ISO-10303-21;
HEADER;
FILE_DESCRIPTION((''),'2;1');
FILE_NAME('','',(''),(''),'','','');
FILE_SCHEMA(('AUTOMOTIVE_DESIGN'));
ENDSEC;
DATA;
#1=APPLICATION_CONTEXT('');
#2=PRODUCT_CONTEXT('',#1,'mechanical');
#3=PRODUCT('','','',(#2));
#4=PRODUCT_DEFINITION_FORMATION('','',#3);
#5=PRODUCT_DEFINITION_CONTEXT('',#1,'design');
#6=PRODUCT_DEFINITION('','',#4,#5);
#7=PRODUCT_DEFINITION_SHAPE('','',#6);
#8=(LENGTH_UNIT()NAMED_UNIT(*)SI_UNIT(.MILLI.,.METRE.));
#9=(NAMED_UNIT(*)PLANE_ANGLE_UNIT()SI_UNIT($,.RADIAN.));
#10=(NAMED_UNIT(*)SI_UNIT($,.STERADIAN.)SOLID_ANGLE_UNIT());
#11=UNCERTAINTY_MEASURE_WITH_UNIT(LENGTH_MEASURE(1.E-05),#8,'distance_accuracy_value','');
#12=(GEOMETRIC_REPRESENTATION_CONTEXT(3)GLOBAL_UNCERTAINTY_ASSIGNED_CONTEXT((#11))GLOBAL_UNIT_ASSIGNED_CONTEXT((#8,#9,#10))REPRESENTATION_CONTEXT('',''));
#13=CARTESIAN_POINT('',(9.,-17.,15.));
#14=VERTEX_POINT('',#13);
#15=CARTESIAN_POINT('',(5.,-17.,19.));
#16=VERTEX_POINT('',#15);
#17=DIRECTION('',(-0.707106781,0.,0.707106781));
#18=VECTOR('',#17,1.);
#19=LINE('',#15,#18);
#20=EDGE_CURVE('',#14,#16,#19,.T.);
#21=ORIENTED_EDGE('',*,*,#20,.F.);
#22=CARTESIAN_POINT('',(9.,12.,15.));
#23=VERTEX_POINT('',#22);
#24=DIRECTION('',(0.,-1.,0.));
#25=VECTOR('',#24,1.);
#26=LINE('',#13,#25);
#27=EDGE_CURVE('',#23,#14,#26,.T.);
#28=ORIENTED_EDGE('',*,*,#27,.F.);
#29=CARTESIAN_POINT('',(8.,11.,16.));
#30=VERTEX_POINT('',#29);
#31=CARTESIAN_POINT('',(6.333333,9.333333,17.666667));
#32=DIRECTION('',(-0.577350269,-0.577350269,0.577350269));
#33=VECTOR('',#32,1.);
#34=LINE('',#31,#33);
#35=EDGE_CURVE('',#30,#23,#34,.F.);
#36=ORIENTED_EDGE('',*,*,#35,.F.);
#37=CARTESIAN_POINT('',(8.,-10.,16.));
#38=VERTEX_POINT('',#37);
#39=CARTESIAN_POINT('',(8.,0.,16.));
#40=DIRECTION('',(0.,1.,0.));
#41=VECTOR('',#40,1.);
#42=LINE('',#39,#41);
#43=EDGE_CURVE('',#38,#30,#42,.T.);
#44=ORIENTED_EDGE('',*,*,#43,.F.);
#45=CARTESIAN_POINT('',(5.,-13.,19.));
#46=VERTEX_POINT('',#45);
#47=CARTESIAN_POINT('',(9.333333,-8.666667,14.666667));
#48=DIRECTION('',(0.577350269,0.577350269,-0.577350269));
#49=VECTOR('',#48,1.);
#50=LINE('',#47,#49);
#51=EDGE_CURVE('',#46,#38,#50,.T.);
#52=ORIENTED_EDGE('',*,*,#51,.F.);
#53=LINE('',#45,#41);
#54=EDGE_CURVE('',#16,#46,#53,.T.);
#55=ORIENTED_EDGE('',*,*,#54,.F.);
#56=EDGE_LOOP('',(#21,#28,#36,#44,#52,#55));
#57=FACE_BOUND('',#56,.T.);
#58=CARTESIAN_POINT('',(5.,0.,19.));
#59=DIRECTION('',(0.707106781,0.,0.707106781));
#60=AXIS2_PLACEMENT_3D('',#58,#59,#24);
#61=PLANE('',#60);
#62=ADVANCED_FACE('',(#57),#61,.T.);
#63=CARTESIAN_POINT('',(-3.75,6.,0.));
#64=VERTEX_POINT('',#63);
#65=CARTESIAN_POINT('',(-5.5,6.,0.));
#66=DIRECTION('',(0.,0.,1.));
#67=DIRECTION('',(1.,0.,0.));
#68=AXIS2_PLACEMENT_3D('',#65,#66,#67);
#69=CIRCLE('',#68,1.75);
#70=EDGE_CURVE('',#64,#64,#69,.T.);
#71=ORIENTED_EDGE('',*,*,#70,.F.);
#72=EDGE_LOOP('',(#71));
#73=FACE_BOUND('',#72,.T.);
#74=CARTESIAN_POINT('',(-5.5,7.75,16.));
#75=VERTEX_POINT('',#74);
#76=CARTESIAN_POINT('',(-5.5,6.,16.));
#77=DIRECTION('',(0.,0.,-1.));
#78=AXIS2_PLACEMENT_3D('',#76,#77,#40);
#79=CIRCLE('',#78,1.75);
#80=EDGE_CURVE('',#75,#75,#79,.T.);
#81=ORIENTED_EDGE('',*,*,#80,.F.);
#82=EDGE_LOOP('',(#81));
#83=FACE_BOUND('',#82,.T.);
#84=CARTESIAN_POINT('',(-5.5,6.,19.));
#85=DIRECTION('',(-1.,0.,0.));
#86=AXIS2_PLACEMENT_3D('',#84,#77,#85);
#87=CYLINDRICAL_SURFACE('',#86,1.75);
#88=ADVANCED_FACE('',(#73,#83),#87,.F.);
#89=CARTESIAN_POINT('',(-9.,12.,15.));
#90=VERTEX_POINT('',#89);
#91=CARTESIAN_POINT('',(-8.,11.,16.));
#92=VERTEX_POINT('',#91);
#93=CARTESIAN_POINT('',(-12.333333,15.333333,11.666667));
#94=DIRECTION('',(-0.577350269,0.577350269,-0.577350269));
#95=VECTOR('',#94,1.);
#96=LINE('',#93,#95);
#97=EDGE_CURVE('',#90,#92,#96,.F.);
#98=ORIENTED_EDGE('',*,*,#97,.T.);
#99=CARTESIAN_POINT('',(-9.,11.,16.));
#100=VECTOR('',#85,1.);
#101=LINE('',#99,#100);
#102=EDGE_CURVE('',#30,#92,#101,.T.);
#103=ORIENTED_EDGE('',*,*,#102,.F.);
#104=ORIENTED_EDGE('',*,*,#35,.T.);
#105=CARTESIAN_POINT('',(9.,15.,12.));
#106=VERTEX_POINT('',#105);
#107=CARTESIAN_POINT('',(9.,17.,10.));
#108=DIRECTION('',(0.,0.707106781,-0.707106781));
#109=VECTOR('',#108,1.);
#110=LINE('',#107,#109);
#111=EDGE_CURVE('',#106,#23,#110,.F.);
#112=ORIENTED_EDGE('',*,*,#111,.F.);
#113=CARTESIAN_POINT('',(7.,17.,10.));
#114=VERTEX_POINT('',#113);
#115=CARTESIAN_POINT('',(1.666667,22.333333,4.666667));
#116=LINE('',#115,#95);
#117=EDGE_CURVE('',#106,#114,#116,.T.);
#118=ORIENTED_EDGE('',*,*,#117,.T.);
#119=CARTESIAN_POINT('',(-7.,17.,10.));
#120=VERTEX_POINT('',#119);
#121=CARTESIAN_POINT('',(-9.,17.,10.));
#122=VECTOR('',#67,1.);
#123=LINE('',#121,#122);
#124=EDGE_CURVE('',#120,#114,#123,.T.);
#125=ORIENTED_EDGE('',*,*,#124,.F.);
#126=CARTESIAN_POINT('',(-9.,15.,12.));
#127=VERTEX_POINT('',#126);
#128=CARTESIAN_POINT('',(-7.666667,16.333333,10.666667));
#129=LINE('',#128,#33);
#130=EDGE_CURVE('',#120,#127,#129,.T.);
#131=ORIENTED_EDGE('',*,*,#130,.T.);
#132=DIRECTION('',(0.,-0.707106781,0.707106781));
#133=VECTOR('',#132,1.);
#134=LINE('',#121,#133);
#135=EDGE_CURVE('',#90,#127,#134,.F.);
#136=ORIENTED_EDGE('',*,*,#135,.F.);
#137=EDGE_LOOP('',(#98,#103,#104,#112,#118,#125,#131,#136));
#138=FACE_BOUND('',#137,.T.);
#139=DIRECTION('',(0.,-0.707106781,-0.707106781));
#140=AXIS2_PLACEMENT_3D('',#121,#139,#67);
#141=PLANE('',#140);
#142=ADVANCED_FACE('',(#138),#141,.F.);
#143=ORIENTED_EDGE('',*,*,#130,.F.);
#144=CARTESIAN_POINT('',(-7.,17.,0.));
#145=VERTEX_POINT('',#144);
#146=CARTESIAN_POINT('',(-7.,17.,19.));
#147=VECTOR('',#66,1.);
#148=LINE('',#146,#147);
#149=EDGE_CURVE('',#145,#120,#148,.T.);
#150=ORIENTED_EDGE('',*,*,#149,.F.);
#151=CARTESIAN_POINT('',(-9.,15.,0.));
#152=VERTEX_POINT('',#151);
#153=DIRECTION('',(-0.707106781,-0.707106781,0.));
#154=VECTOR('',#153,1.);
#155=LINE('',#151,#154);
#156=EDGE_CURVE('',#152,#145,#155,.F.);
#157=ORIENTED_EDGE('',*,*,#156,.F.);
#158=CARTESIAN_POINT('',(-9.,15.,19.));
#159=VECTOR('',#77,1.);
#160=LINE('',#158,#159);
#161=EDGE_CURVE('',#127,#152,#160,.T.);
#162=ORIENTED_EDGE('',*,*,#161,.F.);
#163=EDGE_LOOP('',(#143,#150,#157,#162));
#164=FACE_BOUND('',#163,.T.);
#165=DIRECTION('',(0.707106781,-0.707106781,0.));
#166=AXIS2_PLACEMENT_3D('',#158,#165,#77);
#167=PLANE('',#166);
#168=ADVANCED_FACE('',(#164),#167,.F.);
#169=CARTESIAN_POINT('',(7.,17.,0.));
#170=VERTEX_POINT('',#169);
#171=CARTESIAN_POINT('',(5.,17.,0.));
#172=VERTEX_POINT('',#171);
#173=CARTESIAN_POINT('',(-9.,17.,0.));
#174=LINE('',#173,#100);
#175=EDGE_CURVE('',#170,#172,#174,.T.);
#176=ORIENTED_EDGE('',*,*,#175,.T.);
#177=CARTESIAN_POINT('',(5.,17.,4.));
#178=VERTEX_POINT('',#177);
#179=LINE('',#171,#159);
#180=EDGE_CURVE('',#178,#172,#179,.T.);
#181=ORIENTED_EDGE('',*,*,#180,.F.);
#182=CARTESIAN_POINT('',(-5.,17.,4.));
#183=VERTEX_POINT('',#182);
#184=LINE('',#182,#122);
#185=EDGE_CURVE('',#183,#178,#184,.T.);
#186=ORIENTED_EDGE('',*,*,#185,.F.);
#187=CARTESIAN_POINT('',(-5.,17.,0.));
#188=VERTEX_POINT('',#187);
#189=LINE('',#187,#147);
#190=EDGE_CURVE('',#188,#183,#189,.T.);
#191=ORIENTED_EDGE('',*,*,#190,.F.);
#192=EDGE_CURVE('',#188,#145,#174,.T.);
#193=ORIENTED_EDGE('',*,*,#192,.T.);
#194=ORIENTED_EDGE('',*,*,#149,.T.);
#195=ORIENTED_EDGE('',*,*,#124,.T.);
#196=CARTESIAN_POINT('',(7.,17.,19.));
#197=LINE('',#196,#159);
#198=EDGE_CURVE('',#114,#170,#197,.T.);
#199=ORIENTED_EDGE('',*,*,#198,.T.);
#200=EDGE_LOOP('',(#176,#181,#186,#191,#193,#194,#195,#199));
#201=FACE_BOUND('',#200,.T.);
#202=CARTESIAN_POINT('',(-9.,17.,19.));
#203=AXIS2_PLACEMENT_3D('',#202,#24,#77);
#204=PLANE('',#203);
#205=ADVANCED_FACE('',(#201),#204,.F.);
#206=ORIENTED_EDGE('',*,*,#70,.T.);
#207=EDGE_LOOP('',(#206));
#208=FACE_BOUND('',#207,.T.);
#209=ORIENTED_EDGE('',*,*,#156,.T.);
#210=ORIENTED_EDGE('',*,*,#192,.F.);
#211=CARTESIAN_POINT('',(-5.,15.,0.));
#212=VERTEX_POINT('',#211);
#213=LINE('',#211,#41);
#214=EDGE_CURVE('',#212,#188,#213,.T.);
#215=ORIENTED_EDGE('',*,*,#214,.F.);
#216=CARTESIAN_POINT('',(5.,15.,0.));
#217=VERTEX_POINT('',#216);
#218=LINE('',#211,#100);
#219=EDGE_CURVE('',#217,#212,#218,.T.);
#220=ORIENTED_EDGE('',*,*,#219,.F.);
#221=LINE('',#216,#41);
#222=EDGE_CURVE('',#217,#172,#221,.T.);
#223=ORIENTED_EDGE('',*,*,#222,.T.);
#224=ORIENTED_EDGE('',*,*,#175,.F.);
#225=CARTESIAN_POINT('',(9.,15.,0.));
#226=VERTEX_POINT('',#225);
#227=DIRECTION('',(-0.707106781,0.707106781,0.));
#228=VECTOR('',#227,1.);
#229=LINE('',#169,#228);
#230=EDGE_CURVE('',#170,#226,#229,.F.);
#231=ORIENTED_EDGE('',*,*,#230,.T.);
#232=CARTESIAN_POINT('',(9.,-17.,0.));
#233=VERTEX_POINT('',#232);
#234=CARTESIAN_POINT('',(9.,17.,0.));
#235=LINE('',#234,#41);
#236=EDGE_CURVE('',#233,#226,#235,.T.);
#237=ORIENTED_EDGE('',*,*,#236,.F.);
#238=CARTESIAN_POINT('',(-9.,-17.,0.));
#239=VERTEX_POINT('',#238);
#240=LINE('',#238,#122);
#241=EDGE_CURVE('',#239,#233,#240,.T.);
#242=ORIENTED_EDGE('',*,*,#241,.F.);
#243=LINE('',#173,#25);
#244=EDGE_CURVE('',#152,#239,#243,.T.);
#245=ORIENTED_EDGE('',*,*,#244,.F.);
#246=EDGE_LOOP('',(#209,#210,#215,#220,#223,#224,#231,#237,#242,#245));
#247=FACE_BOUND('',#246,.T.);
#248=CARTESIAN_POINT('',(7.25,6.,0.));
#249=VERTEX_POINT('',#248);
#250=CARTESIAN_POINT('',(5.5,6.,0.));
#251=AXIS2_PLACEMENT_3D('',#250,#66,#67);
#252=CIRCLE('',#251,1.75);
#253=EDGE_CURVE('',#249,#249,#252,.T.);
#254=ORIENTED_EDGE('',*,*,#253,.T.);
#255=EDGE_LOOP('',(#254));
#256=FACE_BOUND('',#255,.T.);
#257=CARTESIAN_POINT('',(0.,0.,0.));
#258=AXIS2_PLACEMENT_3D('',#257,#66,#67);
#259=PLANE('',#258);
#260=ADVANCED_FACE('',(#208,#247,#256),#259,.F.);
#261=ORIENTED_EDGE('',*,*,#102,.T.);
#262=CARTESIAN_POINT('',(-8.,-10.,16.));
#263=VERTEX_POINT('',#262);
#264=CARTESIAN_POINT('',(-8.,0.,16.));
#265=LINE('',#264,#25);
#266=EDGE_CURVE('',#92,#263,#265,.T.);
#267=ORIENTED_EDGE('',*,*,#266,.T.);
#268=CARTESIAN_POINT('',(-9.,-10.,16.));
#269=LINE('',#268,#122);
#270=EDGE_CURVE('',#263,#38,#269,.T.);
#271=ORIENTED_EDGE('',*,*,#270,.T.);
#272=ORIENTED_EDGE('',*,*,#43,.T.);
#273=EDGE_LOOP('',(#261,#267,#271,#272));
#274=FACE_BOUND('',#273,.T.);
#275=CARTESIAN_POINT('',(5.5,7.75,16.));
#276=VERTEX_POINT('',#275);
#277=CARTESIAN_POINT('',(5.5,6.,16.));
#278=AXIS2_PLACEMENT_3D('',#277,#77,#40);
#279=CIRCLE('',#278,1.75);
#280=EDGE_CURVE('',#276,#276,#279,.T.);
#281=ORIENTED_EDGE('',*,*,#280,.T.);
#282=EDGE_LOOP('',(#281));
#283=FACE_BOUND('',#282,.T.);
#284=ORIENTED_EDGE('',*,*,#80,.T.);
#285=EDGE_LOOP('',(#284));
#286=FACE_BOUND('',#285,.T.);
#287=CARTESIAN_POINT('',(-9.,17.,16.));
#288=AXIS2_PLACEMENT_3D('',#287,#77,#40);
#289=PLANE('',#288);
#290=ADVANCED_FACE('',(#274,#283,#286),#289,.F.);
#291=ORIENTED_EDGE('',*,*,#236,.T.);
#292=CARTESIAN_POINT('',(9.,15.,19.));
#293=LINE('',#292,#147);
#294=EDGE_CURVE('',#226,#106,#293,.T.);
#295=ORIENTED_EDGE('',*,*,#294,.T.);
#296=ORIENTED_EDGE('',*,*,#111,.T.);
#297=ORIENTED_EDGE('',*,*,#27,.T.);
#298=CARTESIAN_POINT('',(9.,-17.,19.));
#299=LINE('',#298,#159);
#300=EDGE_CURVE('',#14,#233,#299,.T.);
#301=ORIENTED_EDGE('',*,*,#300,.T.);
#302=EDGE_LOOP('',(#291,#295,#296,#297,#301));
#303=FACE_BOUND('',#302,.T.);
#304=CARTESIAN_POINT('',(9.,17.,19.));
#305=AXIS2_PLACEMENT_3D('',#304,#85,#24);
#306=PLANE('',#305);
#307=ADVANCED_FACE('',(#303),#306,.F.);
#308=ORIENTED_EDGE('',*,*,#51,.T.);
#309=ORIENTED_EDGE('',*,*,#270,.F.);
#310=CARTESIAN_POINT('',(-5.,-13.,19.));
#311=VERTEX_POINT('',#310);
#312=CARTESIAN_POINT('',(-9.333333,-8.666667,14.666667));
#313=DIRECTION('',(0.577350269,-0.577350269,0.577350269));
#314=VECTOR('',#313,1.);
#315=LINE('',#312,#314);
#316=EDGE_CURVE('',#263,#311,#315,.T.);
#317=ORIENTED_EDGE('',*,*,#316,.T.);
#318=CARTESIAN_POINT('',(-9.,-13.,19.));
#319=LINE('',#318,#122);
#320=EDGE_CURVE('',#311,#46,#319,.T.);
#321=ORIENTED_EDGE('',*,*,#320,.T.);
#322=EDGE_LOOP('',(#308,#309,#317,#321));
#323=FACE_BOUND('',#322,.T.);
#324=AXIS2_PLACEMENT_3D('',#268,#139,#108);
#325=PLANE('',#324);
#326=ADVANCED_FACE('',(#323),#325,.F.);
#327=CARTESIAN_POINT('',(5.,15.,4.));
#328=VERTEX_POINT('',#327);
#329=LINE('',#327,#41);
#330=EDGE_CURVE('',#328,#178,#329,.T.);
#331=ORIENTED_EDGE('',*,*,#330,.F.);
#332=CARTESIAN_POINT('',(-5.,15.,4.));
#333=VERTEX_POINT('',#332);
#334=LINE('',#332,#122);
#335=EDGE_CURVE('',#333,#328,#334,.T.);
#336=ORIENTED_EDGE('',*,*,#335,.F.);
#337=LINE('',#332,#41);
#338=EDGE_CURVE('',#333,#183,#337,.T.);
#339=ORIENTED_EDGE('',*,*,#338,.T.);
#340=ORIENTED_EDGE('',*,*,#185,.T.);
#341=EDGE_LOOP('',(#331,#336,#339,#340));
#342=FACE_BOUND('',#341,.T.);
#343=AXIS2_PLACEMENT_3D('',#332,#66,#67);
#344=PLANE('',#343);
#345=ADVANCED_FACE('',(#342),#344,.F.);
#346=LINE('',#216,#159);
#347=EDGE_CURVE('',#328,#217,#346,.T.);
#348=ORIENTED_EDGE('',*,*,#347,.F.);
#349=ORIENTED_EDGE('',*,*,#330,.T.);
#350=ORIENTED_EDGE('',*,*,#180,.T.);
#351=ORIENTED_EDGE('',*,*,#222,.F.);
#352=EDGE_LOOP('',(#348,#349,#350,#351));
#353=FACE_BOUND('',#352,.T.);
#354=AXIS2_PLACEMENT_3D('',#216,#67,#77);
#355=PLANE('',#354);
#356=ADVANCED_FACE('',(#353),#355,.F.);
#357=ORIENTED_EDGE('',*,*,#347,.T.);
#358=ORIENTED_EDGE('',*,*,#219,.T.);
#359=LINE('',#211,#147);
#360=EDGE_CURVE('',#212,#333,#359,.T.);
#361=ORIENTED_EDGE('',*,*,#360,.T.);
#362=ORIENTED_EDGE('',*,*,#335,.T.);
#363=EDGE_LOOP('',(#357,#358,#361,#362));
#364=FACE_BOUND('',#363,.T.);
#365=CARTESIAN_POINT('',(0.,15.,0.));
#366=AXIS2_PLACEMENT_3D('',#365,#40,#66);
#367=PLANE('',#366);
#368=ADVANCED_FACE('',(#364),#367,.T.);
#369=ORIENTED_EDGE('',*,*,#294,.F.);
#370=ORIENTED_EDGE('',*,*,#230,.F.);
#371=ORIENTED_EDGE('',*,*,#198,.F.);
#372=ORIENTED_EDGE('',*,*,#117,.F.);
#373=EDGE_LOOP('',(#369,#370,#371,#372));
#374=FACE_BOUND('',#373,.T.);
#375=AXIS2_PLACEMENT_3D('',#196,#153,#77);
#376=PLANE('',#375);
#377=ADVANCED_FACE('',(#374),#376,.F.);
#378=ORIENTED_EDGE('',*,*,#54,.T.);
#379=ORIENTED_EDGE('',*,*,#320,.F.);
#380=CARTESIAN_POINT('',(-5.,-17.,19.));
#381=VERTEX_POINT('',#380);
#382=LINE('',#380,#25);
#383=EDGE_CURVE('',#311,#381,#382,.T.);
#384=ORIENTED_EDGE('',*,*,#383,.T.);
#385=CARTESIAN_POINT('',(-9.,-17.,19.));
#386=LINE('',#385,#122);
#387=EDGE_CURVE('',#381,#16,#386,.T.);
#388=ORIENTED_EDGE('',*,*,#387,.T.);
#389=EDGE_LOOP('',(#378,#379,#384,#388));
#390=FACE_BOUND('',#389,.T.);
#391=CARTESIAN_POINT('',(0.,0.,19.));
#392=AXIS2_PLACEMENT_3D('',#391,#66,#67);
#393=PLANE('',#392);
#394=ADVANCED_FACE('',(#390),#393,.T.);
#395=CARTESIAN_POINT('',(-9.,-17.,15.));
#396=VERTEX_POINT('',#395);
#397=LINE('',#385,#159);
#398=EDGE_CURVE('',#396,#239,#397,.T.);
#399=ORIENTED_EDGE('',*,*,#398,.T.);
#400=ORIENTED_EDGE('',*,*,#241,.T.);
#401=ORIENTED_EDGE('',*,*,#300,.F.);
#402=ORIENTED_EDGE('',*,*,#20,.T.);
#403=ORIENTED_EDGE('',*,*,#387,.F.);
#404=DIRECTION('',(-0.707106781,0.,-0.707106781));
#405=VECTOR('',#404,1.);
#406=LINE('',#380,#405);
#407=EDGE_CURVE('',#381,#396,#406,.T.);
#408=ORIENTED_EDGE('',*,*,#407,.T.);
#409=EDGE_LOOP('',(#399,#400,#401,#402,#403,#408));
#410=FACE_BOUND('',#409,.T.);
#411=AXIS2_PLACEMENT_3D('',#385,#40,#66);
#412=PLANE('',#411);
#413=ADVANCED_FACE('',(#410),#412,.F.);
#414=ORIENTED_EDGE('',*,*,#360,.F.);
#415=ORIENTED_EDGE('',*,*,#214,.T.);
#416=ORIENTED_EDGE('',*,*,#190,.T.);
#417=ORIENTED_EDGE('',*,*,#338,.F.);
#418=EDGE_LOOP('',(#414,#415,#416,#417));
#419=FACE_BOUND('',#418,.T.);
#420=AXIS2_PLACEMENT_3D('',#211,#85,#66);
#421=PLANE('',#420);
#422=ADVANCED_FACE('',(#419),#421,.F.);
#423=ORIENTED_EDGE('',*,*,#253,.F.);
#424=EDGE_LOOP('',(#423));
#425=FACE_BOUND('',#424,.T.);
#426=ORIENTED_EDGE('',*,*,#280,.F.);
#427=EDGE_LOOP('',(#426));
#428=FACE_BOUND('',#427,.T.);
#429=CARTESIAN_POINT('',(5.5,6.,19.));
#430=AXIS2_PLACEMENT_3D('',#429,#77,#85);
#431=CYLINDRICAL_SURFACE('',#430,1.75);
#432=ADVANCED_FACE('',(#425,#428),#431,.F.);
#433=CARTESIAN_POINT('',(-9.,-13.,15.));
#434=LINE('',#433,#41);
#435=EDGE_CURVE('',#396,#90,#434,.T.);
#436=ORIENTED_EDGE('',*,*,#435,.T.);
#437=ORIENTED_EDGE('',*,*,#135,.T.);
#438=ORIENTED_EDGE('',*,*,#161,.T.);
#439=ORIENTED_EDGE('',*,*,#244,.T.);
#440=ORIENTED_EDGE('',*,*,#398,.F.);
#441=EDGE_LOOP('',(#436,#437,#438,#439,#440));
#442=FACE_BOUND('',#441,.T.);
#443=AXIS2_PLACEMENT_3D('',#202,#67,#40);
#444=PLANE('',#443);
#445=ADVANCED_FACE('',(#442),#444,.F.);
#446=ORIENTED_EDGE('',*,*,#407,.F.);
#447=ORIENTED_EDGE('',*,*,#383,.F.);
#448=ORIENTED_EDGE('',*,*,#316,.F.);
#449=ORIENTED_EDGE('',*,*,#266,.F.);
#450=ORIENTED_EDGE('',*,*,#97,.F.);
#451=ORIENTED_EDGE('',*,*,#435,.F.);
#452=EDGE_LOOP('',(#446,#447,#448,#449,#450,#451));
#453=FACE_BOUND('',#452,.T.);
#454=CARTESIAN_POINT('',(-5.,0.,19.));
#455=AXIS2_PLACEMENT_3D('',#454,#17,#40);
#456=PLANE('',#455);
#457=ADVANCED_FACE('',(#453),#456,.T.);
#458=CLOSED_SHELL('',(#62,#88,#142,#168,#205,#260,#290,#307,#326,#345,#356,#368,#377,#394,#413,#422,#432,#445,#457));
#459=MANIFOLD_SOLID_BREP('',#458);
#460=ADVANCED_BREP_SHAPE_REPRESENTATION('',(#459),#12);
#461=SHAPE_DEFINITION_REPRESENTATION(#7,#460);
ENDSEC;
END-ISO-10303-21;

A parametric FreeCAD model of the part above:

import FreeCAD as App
import Part
import Sketcher
Q = App.Units.Quantity


def edges_at(feature, points):
    """Names of the edges that pass closest to the given points."""
    edges = feature.Shape.Edges
    near = lambda p: min(range(len(edges)), key=lambda i: edges[i].distToShape(Part.Vertex(*p))[0])
    return sorted({f"Edge{near(p) + 1}" for p in points})


def add_polygon(sketch, points):
    """Adds a closed chain of lines whose ends are joined by coincident constraints."""
    first, n = sketch.GeometryCount, len(points)
    for a, b in zip(points, points[1:] + points[:1]):
        sketch.addGeometry(Part.LineSegment(App.Vector(*a, 0), App.Vector(*b, 0)), False)
    for i in range(n):
        sketch.addConstraint(Sketcher.Constraint("Coincident", first + i, 2, first + (i + 1) % n, 1))

doc = App.newDocument("Part")
params = doc.addObject("Spreadsheet::Sheet", "Params")
for row, (alias, value) in enumerate([
    ("sketch1_diameter", "3.5 mm"),
    ("sketch1_width", "18 mm"),
    ("sketch1_height", "34 mm"),
    ("pad1_length", "19 mm"),
    ("sketch2_width", "30 mm"),
    ("sketch2_width2", "27 mm"),
    ("sketch2_height", "3 mm"),
    ("pocket1_length", "18 mm"),
    ("chamfer_size", "6 mm"),
    ("chamfer2_size", "2 mm"),
    ("chamfer3_size", "4 mm"),
    ("sketch3_width", "10 mm"),
    ("sketch3_height", "4 mm"),
    ("pocket2_length", "2 mm"),
], start=1):
    params.set(f"A{row}", alias)
    params.set(f"B{row}", "=" + value)
    params.setAlias(f"B{row}", alias)

body = doc.addObject("PartDesign::Body", "Body")

sketch1 = body.newObject("Sketcher::SketchObject", "Sketch")
sketch1.AttachmentSupport = (doc.getObject("XY_Plane"), [""])
sketch1.MapMode = "FlatFace"
add_polygon(sketch1, [(-9, 17), (-9, -17), (9, -17), (9, 17)])
sketch1.addGeometry(Part.Circle(App.Vector(-5.5, 6, 0), App.Vector(0, 0, 1), 1.8), False)
sketch1.addGeometry(Part.Circle(App.Vector(5.5, 6, 0), App.Vector(0, 0, 1), 1.8), False)
sketch1.addConstraint([
    Sketcher.Constraint("Vertical", 0),
    Sketcher.Constraint("Horizontal", 1),
    Sketcher.Constraint("Vertical", 2),
    Sketcher.Constraint("Horizontal", 3),
    Sketcher.Constraint("Equal", 4, 5),
    Sketcher.Constraint("Symmetric", 0, 2, 2, 2, -1, 1),
    Sketcher.Constraint("Symmetric", 4, 3, 5, 3, -2),
    Sketcher.Constraint("Diameter", 4, Q("3.5 mm")),
    Sketcher.Constraint("DistanceX", 1, 1, 1, 2, Q("18 mm")),
    Sketcher.Constraint("DistanceY", 0, 2, 0, 1, Q("34 mm")),
    Sketcher.Constraint("DistanceY", -1, 1, 4, 3, Q("6 mm")),
    Sketcher.Constraint("DistanceX", 4, 3, 5, 3, Q("11 mm")),
])
sketch1.setExpression("Constraints[11]", "Params.sketch1_diameter")
sketch1.setExpression("Constraints[12]", "Params.sketch1_width")
sketch1.setExpression("Constraints[13]", "Params.sketch1_height")
pad1 = body.newObject("PartDesign::Pad", "Pad")
pad1.Profile = sketch1
pad1.setExpression("Length", "Params.pad1_length")

sketch2 = body.newObject("Sketcher::SketchObject", "Sketch001")
sketch2.AttachmentSupport = (doc.getObject("YZ_Plane"), [""])
sketch2.MapMode = "FlatFace"
sketch2.AttachmentOffset = App.Placement(App.Vector(0, 0, 9), App.Rotation())
add_polygon(sketch2, [(17, 16), (17, 19), (-13, 19), (-10, 16)])
sketch2.addConstraint([
    Sketcher.Constraint("Vertical", 0),
    Sketcher.Constraint("Horizontal", 1),
    Sketcher.Constraint("Horizontal", 3),
    Sketcher.Constraint("DistanceX", 1, 2, 1, 1, Q("30 mm")),
    Sketcher.Constraint("DistanceX", 3, 1, 3, 2, Q("27 mm")),
    Sketcher.Constraint("DistanceY", 0, 1, 0, 2, Q("3 mm")),
    Sketcher.Constraint("DistanceX", -1, 1, 0, 2, Q("17 mm")),
    Sketcher.Constraint("DistanceY", -1, 1, 0, 2, Q("19 mm")),
])
sketch2.setExpression("Constraints[7]", "Params.sketch2_width")
sketch2.setExpression("Constraints[8]", "Params.sketch2_width2")
sketch2.setExpression("Constraints[9]", "Params.sketch2_height")
pocket1 = body.newObject("PartDesign::Pocket", "Pocket")
pocket1.Profile = sketch2
pocket1.setExpression("Length", "Params.pocket1_length")
doc.recompute()

chamfer = body.newObject("PartDesign::Chamfer", "Chamfer")
chamfer.Base = (pocket1, edges_at(pocket1, [(0, 17, 16)]))
chamfer.setExpression("Size", "Params.chamfer_size")
doc.recompute()

chamfer2 = body.newObject("PartDesign::Chamfer", "Chamfer001")
chamfer2.Base = (chamfer, edges_at(chamfer, [(-9, 17, 5), (9, 17, 5)]))
chamfer2.setExpression("Size", "Params.chamfer2_size")
doc.recompute()

chamfer3 = body.newObject("PartDesign::Chamfer", "Chamfer002")
chamfer3.Base = (chamfer2, edges_at(chamfer2, [(-9, -15, 19), (9, -15, 19)]))
chamfer3.setExpression("Size", "Params.chamfer3_size")

sketch3 = body.newObject("Sketcher::SketchObject", "Sketch002")
sketch3.AttachmentSupport = (doc.getObject("XZ_Plane"), [""])
sketch3.MapMode = "FlatFace"
sketch3.AttachmentOffset = App.Placement(App.Vector(0, 0, -17), App.Rotation())
add_polygon(sketch3, [(-5, 0), (-5, 4), (5, 4), (5, 0)])
sketch3.addConstraint([
    Sketcher.Constraint("Vertical", 0),
    Sketcher.Constraint("Horizontal", 1),
    Sketcher.Constraint("Vertical", 2),
    Sketcher.Constraint("Horizontal", 3),
    Sketcher.Constraint("Symmetric", 2, 2, 3, 2, -1, 1),
    Sketcher.Constraint("DistanceX", 1, 1, 1, 2, Q("10 mm")),
    Sketcher.Constraint("DistanceY", 0, 1, 0, 2, Q("4 mm")),
])
sketch3.setExpression("Constraints[9]", "Params.sketch3_width")
sketch3.setExpression("Constraints[10]", "Params.sketch3_height")
pocket2 = body.newObject("PartDesign::Pocket", "Pocket001")
pocket2.Profile = sketch3
pocket2.setExpression("Length", "Params.pocket2_length")
pocket2.Reversed = True

doc.recompute()
